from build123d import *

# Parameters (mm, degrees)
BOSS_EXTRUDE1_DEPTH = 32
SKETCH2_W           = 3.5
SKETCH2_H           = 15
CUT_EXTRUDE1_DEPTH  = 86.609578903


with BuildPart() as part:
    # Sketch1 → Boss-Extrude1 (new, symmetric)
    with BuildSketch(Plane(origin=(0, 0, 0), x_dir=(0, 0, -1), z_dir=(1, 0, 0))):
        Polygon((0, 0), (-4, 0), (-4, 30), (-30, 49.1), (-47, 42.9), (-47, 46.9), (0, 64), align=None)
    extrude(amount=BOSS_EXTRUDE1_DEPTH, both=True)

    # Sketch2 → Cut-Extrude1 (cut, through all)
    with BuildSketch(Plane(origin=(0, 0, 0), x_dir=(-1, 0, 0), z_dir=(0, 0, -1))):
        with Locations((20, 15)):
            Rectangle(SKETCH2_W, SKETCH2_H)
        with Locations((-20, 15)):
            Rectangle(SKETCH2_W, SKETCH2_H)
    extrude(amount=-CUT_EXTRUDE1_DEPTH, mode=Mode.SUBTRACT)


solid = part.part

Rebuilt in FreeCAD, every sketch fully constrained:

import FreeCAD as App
import Part
import Sketcher
Q = App.Units.Quantity

doc = App.newDocument("Part")
body = doc.addObject("PartDesign::Body", "Body")

sketch1 = doc.addObject("Sketcher::SketchObject", "Sketch")
body.addObject(sketch1)
sketch1.AttachmentSupport = (doc.YZ_Plane, [""])
sketch1.MapMode = "FlatFace"
sketch1.addGeometry([
    Part.LineSegment(App.Vector(0, 4, 0), App.Vector(0, 0, 0)),
    Part.LineSegment(App.Vector(0, 0, 0), App.Vector(64, 0, 0)),
    Part.LineSegment(App.Vector(64, 0, 0), App.Vector(46.9, 47, 0)),
    Part.LineSegment(App.Vector(46.9, 47, 0), App.Vector(42.9, 47, 0)),
    Part.LineSegment(App.Vector(42.9, 47, 0), App.Vector(49.1, 30, 0)),
    Part.LineSegment(App.Vector(49.1, 30, 0), App.Vector(30, 4, 0)),
    Part.LineSegment(App.Vector(30, 4, 0), App.Vector(0, 4, 0)),
], False)
sketch1.addConstraint([
    Sketcher.Constraint("Coincident", 0, 2, 1, 1),
    Sketcher.Constraint("Coincident", 1, 2, 2, 1),
    Sketcher.Constraint("Coincident", 2, 2, 3, 1),
    Sketcher.Constraint("Coincident", 3, 2, 4, 1),
    Sketcher.Constraint("Coincident", 4, 2, 5, 1),
    Sketcher.Constraint("Coincident", 5, 2, 6, 1),
    Sketcher.Constraint("Coincident", 6, 2, 0, 1),
    Sketcher.Constraint("Vertical", 0),
    Sketcher.Constraint("Horizontal", 1),
    Sketcher.Constraint("Horizontal", 3),
    Sketcher.Constraint("Horizontal", 6),
    Sketcher.Constraint("Coincident", 0, 2, -1, 1),
    Sketcher.Constraint("Equal", 3, 0),
    Sketcher.Constraint("DistanceX", 1, 1, 1, 2, Q("64 mm")),
    Sketcher.Constraint("DistanceX", 3, 2, 3, 1, Q("4 mm")),
    Sketcher.Constraint("DistanceX", 6, 2, 6, 1, Q("30 mm")),
    Sketcher.Constraint("DistanceY", -1, 1, 2, 2, Q("47 mm")),
    Sketcher.Constraint("DistanceY", -1, 1, 4, 2, Q("30 mm")),
    Sketcher.Constraint("DistanceX", -1, 1, 2, 2, Q("46.9 mm")),
    Sketcher.Constraint("DistanceX", -1, 1, 4, 2, Q("49.1 mm")),
])
pad1 = doc.addObject("PartDesign::Pad", "Pad")
body.addObject(pad1)
pad1.Profile = sketch1
pad1.Length = 64
pad1.Midplane = True

sketch2 = doc.addObject("Sketcher::SketchObject", "Sketch001")
body.addObject(sketch2)
sketch2.AttachmentSupport = (doc.XY_Plane, [""])
sketch2.MapMode = "FlatFace"
sketch2.addGeometry([
    Part.LineSegment(App.Vector(-18.2, 22.5, 0), App.Vector(-18.2, 7.5, 0)),
    Part.LineSegment(App.Vector(-18.2, 7.5, 0), App.Vector(-21.8, 7.5, 0)),
    Part.LineSegment(App.Vector(-21.8, 7.5, 0), App.Vector(-21.8, 22.5, 0)),
    Part.LineSegment(App.Vector(-21.8, 22.5, 0), App.Vector(-18.2, 22.5, 0)),
    Part.LineSegment(App.Vector(21.8, 22.5, 0), App.Vector(21.8, 7.5, 0)),
    Part.LineSegment(App.Vector(21.8, 7.5, 0), App.Vector(18.2, 7.5, 0)),
    Part.LineSegment(App.Vector(18.2, 7.5, 0), App.Vector(18.2, 22.5, 0)),
    Part.LineSegment(App.Vector(18.2, 22.5, 0), App.Vector(21.8, 22.5, 0)),
], False)
sketch2.addConstraint([
    Sketcher.Constraint("Coincident", 0, 2, 1, 1),
    Sketcher.Constraint("Coincident", 1, 2, 2, 1),
    Sketcher.Constraint("Coincident", 2, 2, 3, 1),
    Sketcher.Constraint("Coincident", 3, 2, 0, 1),
    Sketcher.Constraint("Coincident", 4, 2, 5, 1),
    Sketcher.Constraint("Coincident", 5, 2, 6, 1),
    Sketcher.Constraint("Coincident", 6, 2, 7, 1),
    Sketcher.Constraint("Coincident", 7, 2, 4, 1),
    Sketcher.Constraint("Vertical", 0),
    Sketcher.Constraint("Horizontal", 1),
    Sketcher.Constraint("Vertical", 2),
    Sketcher.Constraint("Horizontal", 3),
    Sketcher.Constraint("Vertical", 4),
    Sketcher.Constraint("Horizontal", 5),
    Sketcher.Constraint("Vertical", 6),
    Sketcher.Constraint("Horizontal", 7),
    Sketcher.Constraint("Symmetric", 1, 2, 4, 2, -2),
    Sketcher.Constraint("Symmetric", 3, 2, 6, 2, -2),
    Sketcher.Constraint("DistanceY", 0, 2, 0, 1, Q("15 mm")),
    Sketcher.Constraint("DistanceX", 1, 2, 1, 1, Q("3.5 mm")),
    Sketcher.Constraint("DistanceX", 0, 2, 4, 2, Q("40 mm")),
    Sketcher.Constraint("DistanceY", -1, 1, 0, 2, Q("7.5 mm")),
])
pocket1 = doc.addObject("PartDesign::Pocket", "Pocket")
body.addObject(pocket1)
pocket1.Profile = sketch2
pocket1.Type = "ThroughAll"
pocket1.Reversed = True

doc.recompute()
